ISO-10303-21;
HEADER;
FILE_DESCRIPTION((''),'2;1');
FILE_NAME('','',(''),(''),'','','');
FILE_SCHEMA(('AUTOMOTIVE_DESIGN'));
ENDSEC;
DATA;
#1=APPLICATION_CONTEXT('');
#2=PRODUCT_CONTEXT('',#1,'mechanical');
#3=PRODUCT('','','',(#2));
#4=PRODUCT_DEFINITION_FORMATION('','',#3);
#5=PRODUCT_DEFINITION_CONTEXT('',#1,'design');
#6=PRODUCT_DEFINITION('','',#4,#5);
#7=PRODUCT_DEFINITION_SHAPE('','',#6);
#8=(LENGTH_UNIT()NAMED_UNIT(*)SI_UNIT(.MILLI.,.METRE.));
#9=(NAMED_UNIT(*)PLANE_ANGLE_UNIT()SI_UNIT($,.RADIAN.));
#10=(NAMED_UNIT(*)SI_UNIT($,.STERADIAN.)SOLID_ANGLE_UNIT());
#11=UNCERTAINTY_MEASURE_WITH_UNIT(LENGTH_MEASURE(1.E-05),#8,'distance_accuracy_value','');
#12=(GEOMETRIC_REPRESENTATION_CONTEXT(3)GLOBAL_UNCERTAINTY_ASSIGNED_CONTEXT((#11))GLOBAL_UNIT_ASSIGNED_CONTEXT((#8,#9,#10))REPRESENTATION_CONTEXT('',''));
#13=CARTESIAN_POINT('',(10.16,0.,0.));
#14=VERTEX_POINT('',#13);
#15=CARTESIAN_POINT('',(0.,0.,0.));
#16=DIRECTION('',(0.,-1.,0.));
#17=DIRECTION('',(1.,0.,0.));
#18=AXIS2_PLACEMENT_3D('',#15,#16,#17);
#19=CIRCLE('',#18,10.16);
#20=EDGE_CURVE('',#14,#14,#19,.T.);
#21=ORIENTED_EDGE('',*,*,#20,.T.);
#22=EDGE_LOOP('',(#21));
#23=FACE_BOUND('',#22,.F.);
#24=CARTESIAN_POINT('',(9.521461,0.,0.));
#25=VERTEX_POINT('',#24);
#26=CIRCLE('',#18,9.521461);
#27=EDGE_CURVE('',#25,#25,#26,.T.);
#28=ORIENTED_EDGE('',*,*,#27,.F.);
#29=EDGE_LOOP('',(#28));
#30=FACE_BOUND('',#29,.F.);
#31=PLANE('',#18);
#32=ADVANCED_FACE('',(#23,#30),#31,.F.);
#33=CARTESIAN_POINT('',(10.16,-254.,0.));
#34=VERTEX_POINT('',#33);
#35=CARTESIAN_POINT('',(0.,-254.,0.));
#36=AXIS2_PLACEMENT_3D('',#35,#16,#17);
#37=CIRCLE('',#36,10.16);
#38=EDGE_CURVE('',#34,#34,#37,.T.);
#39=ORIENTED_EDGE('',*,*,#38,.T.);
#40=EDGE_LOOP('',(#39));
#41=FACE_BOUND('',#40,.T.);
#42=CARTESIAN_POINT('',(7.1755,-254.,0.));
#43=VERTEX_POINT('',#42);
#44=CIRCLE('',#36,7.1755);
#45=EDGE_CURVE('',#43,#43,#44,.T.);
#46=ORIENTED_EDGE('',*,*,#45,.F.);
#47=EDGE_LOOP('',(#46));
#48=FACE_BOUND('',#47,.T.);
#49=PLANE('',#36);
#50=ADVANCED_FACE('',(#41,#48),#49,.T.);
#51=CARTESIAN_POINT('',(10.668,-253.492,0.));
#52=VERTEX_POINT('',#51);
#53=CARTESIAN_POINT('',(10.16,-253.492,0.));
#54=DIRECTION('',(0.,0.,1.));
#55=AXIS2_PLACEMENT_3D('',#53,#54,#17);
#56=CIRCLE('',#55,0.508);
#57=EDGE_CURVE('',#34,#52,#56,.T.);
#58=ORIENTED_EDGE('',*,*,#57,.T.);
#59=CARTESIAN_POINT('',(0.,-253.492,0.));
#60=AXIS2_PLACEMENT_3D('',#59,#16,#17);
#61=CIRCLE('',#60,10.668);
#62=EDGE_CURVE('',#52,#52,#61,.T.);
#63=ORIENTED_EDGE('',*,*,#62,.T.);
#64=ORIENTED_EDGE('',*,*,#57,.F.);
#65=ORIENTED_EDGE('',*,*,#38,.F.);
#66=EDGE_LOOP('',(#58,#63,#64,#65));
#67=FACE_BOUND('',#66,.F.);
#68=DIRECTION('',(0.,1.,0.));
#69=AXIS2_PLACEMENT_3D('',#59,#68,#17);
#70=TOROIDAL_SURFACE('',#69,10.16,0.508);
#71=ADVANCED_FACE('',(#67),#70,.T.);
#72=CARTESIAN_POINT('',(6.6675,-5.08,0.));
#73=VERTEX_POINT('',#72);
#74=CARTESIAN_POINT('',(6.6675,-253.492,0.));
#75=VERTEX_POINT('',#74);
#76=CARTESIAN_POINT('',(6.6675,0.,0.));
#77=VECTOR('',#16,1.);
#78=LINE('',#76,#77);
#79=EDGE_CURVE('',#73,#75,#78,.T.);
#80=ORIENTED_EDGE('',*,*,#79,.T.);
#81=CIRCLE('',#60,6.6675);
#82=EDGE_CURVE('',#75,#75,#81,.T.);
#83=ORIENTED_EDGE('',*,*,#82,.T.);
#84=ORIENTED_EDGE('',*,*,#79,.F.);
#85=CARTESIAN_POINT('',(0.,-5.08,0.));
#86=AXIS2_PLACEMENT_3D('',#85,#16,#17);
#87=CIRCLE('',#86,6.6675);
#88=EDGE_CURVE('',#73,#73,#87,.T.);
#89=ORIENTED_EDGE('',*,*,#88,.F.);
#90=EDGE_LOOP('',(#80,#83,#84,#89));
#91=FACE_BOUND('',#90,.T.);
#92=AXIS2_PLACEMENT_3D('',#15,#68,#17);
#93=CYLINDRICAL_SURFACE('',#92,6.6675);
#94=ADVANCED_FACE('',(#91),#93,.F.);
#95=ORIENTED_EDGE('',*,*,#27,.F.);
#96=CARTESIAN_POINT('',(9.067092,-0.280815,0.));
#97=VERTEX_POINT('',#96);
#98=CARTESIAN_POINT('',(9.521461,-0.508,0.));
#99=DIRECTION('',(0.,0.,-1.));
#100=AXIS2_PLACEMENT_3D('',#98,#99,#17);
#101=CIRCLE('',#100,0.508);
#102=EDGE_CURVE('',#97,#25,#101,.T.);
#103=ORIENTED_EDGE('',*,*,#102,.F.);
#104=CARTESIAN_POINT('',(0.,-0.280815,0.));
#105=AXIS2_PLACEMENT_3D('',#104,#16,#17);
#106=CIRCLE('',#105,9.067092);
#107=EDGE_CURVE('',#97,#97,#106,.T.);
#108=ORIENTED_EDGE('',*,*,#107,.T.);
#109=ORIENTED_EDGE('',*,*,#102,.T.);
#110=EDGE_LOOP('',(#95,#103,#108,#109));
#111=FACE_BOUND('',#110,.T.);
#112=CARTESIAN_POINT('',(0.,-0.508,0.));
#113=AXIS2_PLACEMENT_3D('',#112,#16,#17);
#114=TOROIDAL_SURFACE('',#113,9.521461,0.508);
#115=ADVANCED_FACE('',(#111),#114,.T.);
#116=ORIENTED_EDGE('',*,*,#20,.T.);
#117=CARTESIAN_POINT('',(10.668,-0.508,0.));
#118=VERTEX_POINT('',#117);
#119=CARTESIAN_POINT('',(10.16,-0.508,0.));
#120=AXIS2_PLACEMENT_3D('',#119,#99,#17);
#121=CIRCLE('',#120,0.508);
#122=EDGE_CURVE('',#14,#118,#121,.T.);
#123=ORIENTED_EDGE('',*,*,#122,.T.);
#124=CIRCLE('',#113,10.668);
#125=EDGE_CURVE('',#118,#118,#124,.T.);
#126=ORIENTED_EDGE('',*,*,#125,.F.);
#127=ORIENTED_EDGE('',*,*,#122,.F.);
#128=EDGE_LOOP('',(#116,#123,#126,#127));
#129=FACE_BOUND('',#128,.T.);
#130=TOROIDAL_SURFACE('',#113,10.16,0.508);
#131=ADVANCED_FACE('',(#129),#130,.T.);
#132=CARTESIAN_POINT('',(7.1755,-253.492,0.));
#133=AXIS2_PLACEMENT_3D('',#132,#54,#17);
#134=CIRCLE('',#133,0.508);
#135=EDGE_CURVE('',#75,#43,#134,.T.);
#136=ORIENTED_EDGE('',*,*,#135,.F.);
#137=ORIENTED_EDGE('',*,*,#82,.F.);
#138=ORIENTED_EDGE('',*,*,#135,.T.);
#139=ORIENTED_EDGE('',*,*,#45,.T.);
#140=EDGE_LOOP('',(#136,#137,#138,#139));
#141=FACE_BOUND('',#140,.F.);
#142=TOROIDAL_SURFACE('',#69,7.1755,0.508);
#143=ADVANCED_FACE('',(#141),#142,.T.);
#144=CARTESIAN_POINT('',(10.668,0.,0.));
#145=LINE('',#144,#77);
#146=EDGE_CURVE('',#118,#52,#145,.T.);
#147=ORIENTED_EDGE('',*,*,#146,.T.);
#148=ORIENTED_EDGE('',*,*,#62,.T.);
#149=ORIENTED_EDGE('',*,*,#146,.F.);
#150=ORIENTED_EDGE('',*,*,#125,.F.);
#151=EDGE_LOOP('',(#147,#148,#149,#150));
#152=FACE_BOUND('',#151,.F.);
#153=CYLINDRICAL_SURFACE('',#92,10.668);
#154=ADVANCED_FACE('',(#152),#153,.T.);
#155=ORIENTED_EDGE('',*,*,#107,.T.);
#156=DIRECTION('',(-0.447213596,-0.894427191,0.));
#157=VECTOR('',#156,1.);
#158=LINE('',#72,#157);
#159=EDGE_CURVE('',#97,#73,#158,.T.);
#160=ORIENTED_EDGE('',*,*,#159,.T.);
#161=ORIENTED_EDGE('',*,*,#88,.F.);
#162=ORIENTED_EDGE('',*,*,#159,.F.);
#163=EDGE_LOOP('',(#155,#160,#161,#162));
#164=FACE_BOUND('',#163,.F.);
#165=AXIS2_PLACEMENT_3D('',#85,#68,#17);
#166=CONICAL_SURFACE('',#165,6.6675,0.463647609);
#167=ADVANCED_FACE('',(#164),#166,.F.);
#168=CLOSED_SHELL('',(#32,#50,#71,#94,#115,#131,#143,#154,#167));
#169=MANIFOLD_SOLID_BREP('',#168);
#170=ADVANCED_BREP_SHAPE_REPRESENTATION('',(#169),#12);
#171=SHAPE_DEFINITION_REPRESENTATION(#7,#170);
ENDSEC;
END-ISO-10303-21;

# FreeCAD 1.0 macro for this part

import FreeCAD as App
import Part
import Sketcher
Q = App.Units.Quantity


def edges_at(feature, points):
    """Names of the edges that pass closest to the given points."""
    edges = feature.Shape.Edges
    near = lambda p: min(range(len(edges)), key=lambda i: edges[i].distToShape(Part.Vertex(*p))[0])
    return sorted({f"Edge{near(p) + 1}" for p in points})

doc = App.newDocument("Part")
body = doc.addObject("PartDesign::Body", "Body")

sketch1 = doc.addObject("Sketcher::SketchObject", "Sketch")
body.addObject(sketch1)
sketch1.AttachmentSupport = (doc.XZ_Plane, [""])
sketch1.MapMode = "FlatFace"
sketch1.addGeometry([
    Part.Circle(App.Vector(0, 0, 0), App.Vector(0, 0, 1), 11),
    Part.Circle(App.Vector(0, 0, 0), App.Vector(0, 0, 1), 7),
], False)
sketch1.addConstraint([
    Sketcher.Constraint("Coincident", 0, 3, -1, 1),
    Sketcher.Constraint("Coincident", 1, 3, -1, 1),
    Sketcher.Constraint("Diameter", 0, Q("0.84 in")),
    Sketcher.Constraint("Diameter", 1, Q("0.525 in")),
])
pad1 = doc.addObject("PartDesign::Pad", "Pad")
body.addObject(pad1)
pad1.Profile = sketch1
pad1.Length = Q("10 in")
doc.recompute()

chamfer = doc.addObject("PartDesign::Chamfer", "Chamfer")
body.addObject(chamfer)
chamfer.Base = (pad1, edges_at(pad1, [(-6.668, 0, 0)]))
chamfer.ChamferType = "Two distances"
chamfer.Size = Q("0.1 in")
chamfer.Size2 = Q("0.2 in")
chamfer.FlipDirection = True
doc.recompute()

fillet = doc.addObject("PartDesign::Fillet", "Fillet")
body.addObject(fillet)
fillet.Base = (chamfer, edges_at(chamfer, [(-10.668, 0, 0), (-9.207, 0, 0)]))
fillet.Radius = Q("0.02 in")
doc.recompute()

fillet2 = doc.addObject("PartDesign::Fillet", "Fillet001")
body.addObject(fillet2)
fillet2.Base = (fillet, edges_at(fillet, [(-10.668, -254, 0), (-6.668, -254, 0)]))
fillet2.Radius = Q("0.02 in")

doc.recompute()
